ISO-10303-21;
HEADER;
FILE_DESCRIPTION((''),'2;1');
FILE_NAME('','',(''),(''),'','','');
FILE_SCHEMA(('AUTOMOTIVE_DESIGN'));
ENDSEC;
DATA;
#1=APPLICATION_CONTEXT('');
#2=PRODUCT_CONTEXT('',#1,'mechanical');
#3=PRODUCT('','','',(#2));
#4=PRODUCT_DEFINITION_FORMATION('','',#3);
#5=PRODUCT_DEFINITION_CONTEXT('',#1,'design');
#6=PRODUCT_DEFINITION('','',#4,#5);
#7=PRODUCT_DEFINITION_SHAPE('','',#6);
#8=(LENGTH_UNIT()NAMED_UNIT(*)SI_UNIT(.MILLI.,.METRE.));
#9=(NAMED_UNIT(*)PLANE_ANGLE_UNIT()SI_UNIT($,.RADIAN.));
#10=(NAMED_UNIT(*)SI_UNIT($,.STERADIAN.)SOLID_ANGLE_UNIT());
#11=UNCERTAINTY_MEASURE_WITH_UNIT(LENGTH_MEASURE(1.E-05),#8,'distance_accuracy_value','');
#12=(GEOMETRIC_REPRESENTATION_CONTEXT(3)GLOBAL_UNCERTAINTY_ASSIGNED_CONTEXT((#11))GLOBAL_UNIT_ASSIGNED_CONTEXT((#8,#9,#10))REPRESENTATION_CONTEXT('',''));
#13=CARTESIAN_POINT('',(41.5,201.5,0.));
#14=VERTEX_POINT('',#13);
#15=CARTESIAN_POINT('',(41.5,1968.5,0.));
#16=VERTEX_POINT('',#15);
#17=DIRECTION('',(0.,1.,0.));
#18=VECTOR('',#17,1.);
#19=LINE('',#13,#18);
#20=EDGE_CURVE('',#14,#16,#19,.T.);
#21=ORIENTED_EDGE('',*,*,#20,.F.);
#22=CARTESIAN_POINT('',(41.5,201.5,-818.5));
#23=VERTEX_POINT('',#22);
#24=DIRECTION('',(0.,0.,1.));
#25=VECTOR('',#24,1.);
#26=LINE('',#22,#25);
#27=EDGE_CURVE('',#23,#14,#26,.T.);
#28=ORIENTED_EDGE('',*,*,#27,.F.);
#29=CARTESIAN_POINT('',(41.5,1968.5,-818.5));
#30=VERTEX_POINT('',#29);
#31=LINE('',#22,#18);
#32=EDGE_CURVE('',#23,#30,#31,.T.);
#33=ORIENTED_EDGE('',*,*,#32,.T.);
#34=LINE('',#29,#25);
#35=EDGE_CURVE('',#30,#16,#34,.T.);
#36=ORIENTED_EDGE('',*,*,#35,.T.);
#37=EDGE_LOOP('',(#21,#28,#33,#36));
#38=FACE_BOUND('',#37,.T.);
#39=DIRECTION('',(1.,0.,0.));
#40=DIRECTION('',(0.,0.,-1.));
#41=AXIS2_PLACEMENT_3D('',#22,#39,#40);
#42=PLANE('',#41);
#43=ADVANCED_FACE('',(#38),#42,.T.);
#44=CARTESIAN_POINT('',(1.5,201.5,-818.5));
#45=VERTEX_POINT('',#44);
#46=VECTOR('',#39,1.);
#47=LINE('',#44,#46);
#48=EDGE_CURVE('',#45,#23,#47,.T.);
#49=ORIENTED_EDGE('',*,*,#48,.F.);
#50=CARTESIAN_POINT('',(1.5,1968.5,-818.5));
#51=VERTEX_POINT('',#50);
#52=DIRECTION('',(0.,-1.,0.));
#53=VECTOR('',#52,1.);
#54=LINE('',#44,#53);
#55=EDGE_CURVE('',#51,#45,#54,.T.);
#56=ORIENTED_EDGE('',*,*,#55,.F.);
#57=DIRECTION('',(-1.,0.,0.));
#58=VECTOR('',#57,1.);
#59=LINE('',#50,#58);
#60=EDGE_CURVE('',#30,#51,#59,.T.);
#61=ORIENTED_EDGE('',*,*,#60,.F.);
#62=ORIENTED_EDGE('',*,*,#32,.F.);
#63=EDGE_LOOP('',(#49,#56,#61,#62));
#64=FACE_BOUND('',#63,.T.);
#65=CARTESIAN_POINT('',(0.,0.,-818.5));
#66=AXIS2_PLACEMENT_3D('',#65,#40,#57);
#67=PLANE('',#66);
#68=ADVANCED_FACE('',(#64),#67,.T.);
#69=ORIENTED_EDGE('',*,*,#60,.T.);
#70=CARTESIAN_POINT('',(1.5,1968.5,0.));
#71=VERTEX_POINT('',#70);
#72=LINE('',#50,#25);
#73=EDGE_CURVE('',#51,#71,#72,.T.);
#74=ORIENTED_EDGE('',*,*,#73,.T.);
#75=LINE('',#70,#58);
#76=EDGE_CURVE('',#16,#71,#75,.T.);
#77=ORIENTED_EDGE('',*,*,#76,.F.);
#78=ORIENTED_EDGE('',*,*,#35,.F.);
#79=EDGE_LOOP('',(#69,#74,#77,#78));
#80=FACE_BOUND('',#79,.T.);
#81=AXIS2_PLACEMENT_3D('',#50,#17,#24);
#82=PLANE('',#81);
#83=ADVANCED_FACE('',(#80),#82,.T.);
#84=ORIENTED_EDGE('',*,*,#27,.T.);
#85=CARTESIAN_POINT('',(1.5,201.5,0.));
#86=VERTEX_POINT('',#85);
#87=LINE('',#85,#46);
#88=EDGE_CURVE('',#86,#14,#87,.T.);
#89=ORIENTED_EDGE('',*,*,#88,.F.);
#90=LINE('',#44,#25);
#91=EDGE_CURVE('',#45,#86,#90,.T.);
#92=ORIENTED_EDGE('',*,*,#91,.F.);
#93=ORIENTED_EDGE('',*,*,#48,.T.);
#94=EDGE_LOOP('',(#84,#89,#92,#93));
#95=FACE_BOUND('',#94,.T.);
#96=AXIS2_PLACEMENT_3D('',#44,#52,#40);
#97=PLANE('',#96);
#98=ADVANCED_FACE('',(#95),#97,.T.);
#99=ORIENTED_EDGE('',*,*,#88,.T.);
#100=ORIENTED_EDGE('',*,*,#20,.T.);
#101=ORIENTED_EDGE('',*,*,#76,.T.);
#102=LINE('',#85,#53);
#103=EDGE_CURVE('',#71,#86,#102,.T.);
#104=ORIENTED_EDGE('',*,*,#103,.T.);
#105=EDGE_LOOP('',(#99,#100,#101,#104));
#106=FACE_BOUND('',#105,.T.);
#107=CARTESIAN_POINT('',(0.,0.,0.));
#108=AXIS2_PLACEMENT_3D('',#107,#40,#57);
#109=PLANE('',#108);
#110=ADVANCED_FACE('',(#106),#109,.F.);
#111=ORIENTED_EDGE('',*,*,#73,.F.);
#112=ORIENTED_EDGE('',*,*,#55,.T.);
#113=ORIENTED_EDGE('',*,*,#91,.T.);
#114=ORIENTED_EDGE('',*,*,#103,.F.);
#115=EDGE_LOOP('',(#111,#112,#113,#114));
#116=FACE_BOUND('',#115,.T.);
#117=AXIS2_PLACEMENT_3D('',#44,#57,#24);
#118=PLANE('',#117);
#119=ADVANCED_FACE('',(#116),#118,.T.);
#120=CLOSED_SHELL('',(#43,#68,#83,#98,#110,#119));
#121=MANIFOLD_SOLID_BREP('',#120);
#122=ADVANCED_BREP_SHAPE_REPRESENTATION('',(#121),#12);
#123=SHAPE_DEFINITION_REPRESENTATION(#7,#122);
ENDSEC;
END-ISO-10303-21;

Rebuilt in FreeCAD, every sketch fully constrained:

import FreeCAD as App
import Part
import Sketcher

V = App.Vector
Q = App.Units.Quantity

doc = App.newDocument("Part")
body = doc.addObject("PartDesign::Body", "Body")

# Sketch on XY plane
sketch1 = doc.addObject("Sketcher::SketchObject", "Sketch")
body.addObject(sketch1)
sketch1.AttachmentSupport = (doc.XY_Plane, [""])
sketch1.MapMode = "FlatFace"
sketch1.addGeometry([
    Part.LineSegment(V(2, 1968, 0), V(2, 202, 0)),
    Part.LineSegment(V(2, 202, 0), V(42, 202, 0)),
    Part.LineSegment(V(42, 202, 0), V(42, 1968, 0)),
    Part.LineSegment(V(42, 1968, 0), V(2, 1968, 0)),
], False)
sketch1.addConstraint([
    Sketcher.Constraint("Coincident", 0, 2, 1, 1),
    Sketcher.Constraint("Coincident", 1, 2, 2, 1),
    Sketcher.Constraint("Coincident", 2, 2, 3, 1),
    Sketcher.Constraint("Coincident", 3, 2, 0, 1),
    Sketcher.Constraint("Vertical", 0),
    Sketcher.Constraint("Horizontal", 1),
    Sketcher.Constraint("Vertical", 2),
    Sketcher.Constraint("Horizontal", 3),
    Sketcher.Constraint("DistanceX", 1, 1, 1, 2, Q("40 mm")),
    Sketcher.Constraint("DistanceY", 0, 2, 0, 1, Q("1767 mm")),
    Sketcher.Constraint("DistanceX", -1, 1, 0, 2, Q("1.5 mm")),
    Sketcher.Constraint("DistanceY", -1, 1, 0, 2, Q("201.5 mm")),
])
pad1 = doc.addObject("PartDesign::Pad", "Pad")
body.addObject(pad1)
pad1.Profile = sketch1
pad1.Length = 818.5
pad1.Reversed = True

doc.recompute()
